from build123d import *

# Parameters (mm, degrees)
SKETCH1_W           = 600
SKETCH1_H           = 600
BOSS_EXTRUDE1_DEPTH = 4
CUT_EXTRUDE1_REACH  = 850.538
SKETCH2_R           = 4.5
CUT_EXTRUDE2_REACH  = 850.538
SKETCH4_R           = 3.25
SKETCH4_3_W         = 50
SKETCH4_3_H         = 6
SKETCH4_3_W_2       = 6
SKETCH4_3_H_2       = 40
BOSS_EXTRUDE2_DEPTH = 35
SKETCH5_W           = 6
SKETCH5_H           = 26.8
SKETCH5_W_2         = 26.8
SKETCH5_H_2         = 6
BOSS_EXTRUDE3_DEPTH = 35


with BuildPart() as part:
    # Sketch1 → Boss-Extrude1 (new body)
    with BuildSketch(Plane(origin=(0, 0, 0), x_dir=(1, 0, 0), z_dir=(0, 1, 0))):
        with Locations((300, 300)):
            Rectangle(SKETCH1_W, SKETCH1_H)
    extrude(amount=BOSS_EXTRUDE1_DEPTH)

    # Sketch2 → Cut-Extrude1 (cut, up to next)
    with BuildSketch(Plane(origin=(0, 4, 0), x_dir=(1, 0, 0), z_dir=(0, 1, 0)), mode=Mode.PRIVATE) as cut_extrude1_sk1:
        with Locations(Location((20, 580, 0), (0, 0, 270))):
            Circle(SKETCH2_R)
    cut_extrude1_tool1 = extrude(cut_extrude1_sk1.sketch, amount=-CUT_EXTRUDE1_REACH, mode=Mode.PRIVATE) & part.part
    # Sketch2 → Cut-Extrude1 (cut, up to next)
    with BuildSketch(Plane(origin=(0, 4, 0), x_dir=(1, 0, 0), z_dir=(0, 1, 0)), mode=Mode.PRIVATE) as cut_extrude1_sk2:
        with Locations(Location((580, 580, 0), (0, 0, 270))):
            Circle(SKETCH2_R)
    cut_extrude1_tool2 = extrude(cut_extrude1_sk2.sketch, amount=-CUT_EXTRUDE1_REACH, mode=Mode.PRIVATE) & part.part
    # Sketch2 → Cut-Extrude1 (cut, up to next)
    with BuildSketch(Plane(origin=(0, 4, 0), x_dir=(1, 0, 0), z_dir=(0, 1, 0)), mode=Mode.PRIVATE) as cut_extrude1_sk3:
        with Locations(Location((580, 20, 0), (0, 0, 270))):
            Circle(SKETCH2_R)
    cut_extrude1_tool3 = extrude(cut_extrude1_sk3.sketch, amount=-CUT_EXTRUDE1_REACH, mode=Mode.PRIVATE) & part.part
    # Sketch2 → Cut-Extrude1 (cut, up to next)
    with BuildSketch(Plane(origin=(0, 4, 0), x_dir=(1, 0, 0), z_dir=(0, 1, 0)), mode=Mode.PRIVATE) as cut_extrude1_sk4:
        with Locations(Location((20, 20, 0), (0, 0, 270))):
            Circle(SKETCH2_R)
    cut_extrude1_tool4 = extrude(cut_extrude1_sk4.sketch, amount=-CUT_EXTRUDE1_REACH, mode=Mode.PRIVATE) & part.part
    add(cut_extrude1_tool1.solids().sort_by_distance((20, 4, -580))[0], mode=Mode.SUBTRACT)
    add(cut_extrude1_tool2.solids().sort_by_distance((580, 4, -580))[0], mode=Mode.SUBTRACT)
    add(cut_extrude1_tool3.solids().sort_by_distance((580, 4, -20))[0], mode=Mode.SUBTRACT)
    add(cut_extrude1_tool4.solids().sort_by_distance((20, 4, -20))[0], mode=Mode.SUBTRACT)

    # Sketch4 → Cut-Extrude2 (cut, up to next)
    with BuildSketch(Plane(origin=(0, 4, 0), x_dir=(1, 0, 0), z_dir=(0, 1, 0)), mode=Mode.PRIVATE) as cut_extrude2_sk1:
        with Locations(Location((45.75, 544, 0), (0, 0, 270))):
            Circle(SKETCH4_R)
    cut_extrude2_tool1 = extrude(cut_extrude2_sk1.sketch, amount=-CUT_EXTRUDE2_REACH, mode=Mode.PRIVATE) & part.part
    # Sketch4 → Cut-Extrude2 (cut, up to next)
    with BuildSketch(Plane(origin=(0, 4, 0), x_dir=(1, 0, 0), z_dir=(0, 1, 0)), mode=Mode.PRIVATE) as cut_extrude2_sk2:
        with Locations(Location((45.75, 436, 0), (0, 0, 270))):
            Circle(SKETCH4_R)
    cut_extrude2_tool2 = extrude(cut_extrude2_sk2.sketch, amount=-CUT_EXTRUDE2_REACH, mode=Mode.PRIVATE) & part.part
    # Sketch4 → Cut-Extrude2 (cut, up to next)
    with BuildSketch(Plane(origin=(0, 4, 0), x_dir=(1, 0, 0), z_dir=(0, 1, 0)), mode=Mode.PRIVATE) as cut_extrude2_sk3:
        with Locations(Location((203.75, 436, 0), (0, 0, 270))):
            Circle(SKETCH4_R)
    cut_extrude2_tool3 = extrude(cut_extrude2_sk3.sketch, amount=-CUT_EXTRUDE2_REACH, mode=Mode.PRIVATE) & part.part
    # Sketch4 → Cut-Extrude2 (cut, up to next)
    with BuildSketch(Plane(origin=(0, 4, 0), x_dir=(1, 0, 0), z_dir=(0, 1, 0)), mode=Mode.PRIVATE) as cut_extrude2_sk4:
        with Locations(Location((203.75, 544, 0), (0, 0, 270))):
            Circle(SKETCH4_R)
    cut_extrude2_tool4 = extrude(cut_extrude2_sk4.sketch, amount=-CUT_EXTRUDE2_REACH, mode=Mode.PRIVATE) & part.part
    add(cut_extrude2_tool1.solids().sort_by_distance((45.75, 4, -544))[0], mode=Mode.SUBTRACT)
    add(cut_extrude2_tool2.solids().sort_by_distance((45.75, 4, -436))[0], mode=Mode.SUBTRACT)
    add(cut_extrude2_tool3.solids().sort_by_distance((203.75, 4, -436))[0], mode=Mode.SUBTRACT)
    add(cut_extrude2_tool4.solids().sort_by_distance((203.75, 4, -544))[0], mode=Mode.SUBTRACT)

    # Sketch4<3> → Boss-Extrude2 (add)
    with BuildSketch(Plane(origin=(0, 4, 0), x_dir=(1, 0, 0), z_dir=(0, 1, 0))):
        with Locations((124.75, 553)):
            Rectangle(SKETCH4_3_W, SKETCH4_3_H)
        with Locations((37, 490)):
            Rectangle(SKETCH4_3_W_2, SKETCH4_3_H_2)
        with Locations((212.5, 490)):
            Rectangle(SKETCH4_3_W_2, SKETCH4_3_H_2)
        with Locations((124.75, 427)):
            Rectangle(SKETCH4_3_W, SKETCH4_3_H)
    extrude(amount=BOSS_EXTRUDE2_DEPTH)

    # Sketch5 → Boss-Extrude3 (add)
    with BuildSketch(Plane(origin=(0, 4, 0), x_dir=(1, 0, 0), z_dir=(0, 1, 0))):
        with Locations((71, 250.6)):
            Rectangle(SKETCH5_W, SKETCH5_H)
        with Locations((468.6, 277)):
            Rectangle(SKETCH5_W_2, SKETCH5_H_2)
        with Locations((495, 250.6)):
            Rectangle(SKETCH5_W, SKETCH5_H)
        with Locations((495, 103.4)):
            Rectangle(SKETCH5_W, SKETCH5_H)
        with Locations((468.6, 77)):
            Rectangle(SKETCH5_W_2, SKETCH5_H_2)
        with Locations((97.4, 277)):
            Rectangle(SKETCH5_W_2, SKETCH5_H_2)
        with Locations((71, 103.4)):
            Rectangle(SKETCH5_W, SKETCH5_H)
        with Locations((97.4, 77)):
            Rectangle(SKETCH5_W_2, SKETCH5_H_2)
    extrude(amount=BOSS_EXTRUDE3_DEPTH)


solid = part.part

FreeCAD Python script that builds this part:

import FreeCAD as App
import Part
import Sketcher
Q = App.Units.Quantity


def add_polygon(sketch, points):
    """Adds a closed chain of lines whose ends are joined by coincident constraints."""
    first, n = sketch.GeometryCount, len(points)
    for a, b in zip(points, points[1:] + points[:1]):
        sketch.addGeometry(Part.LineSegment(App.Vector(*a, 0), App.Vector(*b, 0)), False)
    for i in range(n):
        sketch.addConstraint(Sketcher.Constraint("Coincident", first + i, 2, first + (i + 1) % n, 1))

doc = App.newDocument("Part")
body = doc.addObject("PartDesign::Body", "Body")

# Sketch on XZ plane
sketch1 = doc.addObject("Sketcher::SketchObject", "Sketch")
body.addObject(sketch1)
sketch1.AttachmentSupport = (doc.XZ_Plane, [""])
sketch1.MapMode = "FlatFace"
add_polygon(sketch1, [(0, -600), (0, 0), (600, 0), (600, -600)])  # lines 0-3
sketch1.addConstraint([
    Sketcher.Constraint("Vertical", 0),
    Sketcher.Constraint("Horizontal", 1),
    Sketcher.Constraint("Vertical", 2),
    Sketcher.Constraint("Horizontal", 3),
    Sketcher.Constraint("Coincident", 0, 2, -1, 1),
    Sketcher.Constraint("Equal", 3, 0),
    Sketcher.Constraint("DistanceX", 1, 1, 1, 2, Q("600 mm")),
])
pad1 = doc.addObject("PartDesign::Pad", "Pad")
body.addObject(pad1)
pad1.Profile = sketch1
pad1.Length = 4
pad1.Reversed = True

# Sketch on XZ plane
sketch2 = doc.addObject("Sketcher::SketchObject", "Sketch001")
body.addObject(sketch2)
sketch2.AttachmentSupport = (doc.XZ_Plane, [""])
sketch2.MapMode = "FlatFace"
sketch2.AttachmentOffset = App.Placement(App.Vector(0, 0, -4), App.Rotation())
sketch2.addGeometry(Part.Circle(App.Vector(20, -580, 0), App.Vector(0, 0, 1), 4.5), False)
sketch2.addConstraint([
    Sketcher.Constraint("Diameter", 0, Q("9 mm")),
    Sketcher.Constraint("DistanceX", -1, 1, 0, 3, Q("20 mm")),
    Sketcher.Constraint("DistanceY", 0, 3, -1, 1, Q("580 mm")),
])
pocket1 = doc.addObject("PartDesign::Pocket", "Pocket")
body.addObject(pocket1)
pocket1.Profile = sketch2
pocket1.Type = "UpToFirst"
pocket1.Reversed = True

# Sketch on XZ plane
sketch3 = doc.addObject("Sketcher::SketchObject", "Sketch002")
body.addObject(sketch3)
sketch3.AttachmentSupport = (doc.XZ_Plane, [""])
sketch3.MapMode = "FlatFace"
sketch3.AttachmentOffset = App.Placement(App.Vector(0, 0, -4), App.Rotation())
sketch3.addGeometry(Part.Circle(App.Vector(580, -580, 0), App.Vector(0, 0, 1), 4.5), False)
sketch3.addConstraint([
    Sketcher.Constraint("Diameter", 0, Q("9 mm")),
    Sketcher.Constraint("DistanceX", -1, 1, 0, 3, Q("580 mm")),
    Sketcher.Constraint("DistanceY", 0, 3, -1, 1, Q("580 mm")),
])
pocket2 = doc.addObject("PartDesign::Pocket", "Pocket001")
body.addObject(pocket2)
pocket2.Profile = sketch3
pocket2.Type = "UpToFirst"
pocket2.Reversed = True

# Sketch on XZ plane
sketch4 = doc.addObject("Sketcher::SketchObject", "Sketch003")
body.addObject(sketch4)
sketch4.AttachmentSupport = (doc.XZ_Plane, [""])
sketch4.MapMode = "FlatFace"
sketch4.AttachmentOffset = App.Placement(App.Vector(0, 0, -4), App.Rotation())
sketch4.addGeometry(Part.Circle(App.Vector(580, -20, 0), App.Vector(0, 0, 1), 4.5), False)
sketch4.addConstraint([
    Sketcher.Constraint("Diameter", 0, Q("9 mm")),
    Sketcher.Constraint("DistanceX", -1, 1, 0, 3, Q("580 mm")),
    Sketcher.Constraint("DistanceY", 0, 3, -1, 1, Q("20 mm")),
])
pocket3 = doc.addObject("PartDesign::Pocket", "Pocket002")
body.addObject(pocket3)
pocket3.Profile = sketch4
pocket3.Type = "UpToFirst"
pocket3.Reversed = True

# Sketch on XZ plane
sketch5 = doc.addObject("Sketcher::SketchObject", "Sketch004")
body.addObject(sketch5)
sketch5.AttachmentSupport = (doc.XZ_Plane, [""])
sketch5.MapMode = "FlatFace"
sketch5.AttachmentOffset = App.Placement(App.Vector(0, 0, -4), App.Rotation())
sketch5.addGeometry(Part.Circle(App.Vector(20, -20, 0), App.Vector(0, 0, 1), 4.5), False)
sketch5.addConstraint([
    Sketcher.Constraint("Diameter", 0, Q("9 mm")),
    Sketcher.Constraint("DistanceX", -1, 1, 0, 3, Q("20 mm")),
    Sketcher.Constraint("DistanceY", 0, 3, -1, 1, Q("20 mm")),
])
pocket4 = doc.addObject("PartDesign::Pocket", "Pocket003")
body.addObject(pocket4)
pocket4.Profile = sketch5
pocket4.Type = "UpToFirst"
pocket4.Reversed = True

# Sketch on XZ plane
sketch6 = doc.addObject("Sketcher::SketchObject", "Sketch005")
body.addObject(sketch6)
sketch6.AttachmentSupport = (doc.XZ_Plane, [""])
sketch6.MapMode = "FlatFace"
sketch6.AttachmentOffset = App.Placement(App.Vector(0, 0, -4), App.Rotation())
sketch6.addGeometry(Part.Circle(App.Vector(45.8, -544, 0), App.Vector(0, 0, 1), 3.2), False)
sketch6.addConstraint([
    Sketcher.Constraint("Diameter", 0, Q("6.5 mm")),
    Sketcher.Constraint("DistanceY", 0, 3, -1, 1, Q("544 mm")),
    Sketcher.Constraint("DistanceX", -1, 1, 0, 3, Q("45.75 mm")),
])
pocket5 = doc.addObject("PartDesign::Pocket", "Pocket004")
body.addObject(pocket5)
pocket5.Profile = sketch6
pocket5.Type = "UpToFirst"
pocket5.Reversed = True

# Sketch on XZ plane
sketch7 = doc.addObject("Sketcher::SketchObject", "Sketch006")
body.addObject(sketch7)
sketch7.AttachmentSupport = (doc.XZ_Plane, [""])
sketch7.MapMode = "FlatFace"
sketch7.AttachmentOffset = App.Placement(App.Vector(0, 0, -4), App.Rotation())
sketch7.addGeometry(Part.Circle(App.Vector(45.8, -436, 0), App.Vector(0, 0, 1), 3.2), False)
sketch7.addConstraint([
    Sketcher.Constraint("Diameter", 0, Q("6.5 mm")),
    Sketcher.Constraint("DistanceY", 0, 3, -1, 1, Q("436 mm")),
    Sketcher.Constraint("DistanceX", -1, 1, 0, 3, Q("45.75 mm")),
])
pocket6 = doc.addObject("PartDesign::Pocket", "Pocket005")
body.addObject(pocket6)
pocket6.Profile = sketch7
pocket6.Type = "UpToFirst"
pocket6.Reversed = True

# Sketch on XZ plane
sketch8 = doc.addObject("Sketcher::SketchObject", "Sketch007")
body.addObject(sketch8)
sketch8.AttachmentSupport = (doc.XZ_Plane, [""])
sketch8.MapMode = "FlatFace"
sketch8.AttachmentOffset = App.Placement(App.Vector(0, 0, -4), App.Rotation())
sketch8.addGeometry(Part.Circle(App.Vector(203.8, -436, 0), App.Vector(0, 0, 1), 3.2), False)
sketch8.addConstraint([
    Sketcher.Constraint("Diameter", 0, Q("6.5 mm")),
    Sketcher.Constraint("DistanceY", 0, 3, -1, 1, Q("436 mm")),
    Sketcher.Constraint("DistanceX", -1, 1, 0, 3, Q("203.75 mm")),
])
pocket7 = doc.addObject("PartDesign::Pocket", "Pocket006")
body.addObject(pocket7)
pocket7.Profile = sketch8
pocket7.Type = "UpToFirst"
pocket7.Reversed = True

# Sketch on XZ plane
sketch9 = doc.addObject("Sketcher::SketchObject", "Sketch008")
body.addObject(sketch9)
sketch9.AttachmentSupport = (doc.XZ_Plane, [""])
sketch9.MapMode = "FlatFace"
sketch9.AttachmentOffset = App.Placement(App.Vector(0, 0, -4), App.Rotation())
sketch9.addGeometry(Part.Circle(App.Vector(203.8, -544, 0), App.Vector(0, 0, 1), 3.2), False)
sketch9.addConstraint([
    Sketcher.Constraint("Diameter", 0, Q("6.5 mm")),
    Sketcher.Constraint("DistanceY", 0, 3, -1, 1, Q("544 mm")),
    Sketcher.Constraint("DistanceX", -1, 1, 0, 3, Q("203.75 mm")),
])
pocket8 = doc.addObject("PartDesign::Pocket", "Pocket007")
body.addObject(pocket8)
pocket8.Profile = sketch9
pocket8.Type = "UpToFirst"
pocket8.Reversed = True

# Sketch on XZ plane
sketch10 = doc.addObject("Sketcher::SketchObject", "Sketch009")
body.addObject(sketch10)
sketch10.AttachmentSupport = (doc.XZ_Plane, [""])
sketch10.MapMode = "FlatFace"
sketch10.AttachmentOffset = App.Placement(App.Vector(0, 0, -4), App.Rotation())
add_polygon(sketch10, [(100, -556), (100, -550), (150, -550), (150, -556)])  # lines 0-3
add_polygon(sketch10, [(34, -510), (34, -470), (40, -470), (40, -510)])  # lines 4-7
add_polygon(sketch10, [(210, -510), (210, -470), (216, -470), (216, -510)])  # lines 8-11
add_polygon(sketch10, [(100, -430), (100, -424), (150, -424), (150, -430)])  # lines 12-15
sketch10.addConstraint([
    Sketcher.Constraint("Vertical", 0),
    Sketcher.Constraint("Horizontal", 1),
    Sketcher.Constraint("Vertical", 2),
    Sketcher.Constraint("Horizontal", 3),
    Sketcher.Constraint("Vertical", 4),
    Sketcher.Constraint("Horizontal", 5),
    Sketcher.Constraint("Vertical", 6),
    Sketcher.Constraint("Horizontal", 7),
    Sketcher.Constraint("Vertical", 8),
    Sketcher.Constraint("Horizontal", 9),
    Sketcher.Constraint("Vertical", 10),
    Sketcher.Constraint("Horizontal", 11),
    Sketcher.Constraint("Vertical", 12),
    Sketcher.Constraint("Horizontal", 13),
    Sketcher.Constraint("Vertical", 14),
    Sketcher.Constraint("Horizontal", 15),
    Sketcher.Constraint("Horizontal", 5, 2, 8, 2),
    Sketcher.Constraint("Horizontal", 7, 2, 10, 2),
    Sketcher.Constraint("Vertical", 3, 2, 12, 2),
    Sketcher.Constraint("Vertical", 2, 2, 13, 2),
    Sketcher.Constraint("Equal", 7, 9),
    Sketcher.Constraint("Equal", 11, 0),
    Sketcher.Constraint("Equal", 2, 12),
    Sketcher.Constraint("DistanceX", 1, 1, 1, 2, Q("50 mm")),
    Sketcher.Constraint("DistanceX", 5, 1, 5, 2, Q("6 mm")),
    Sketcher.Constraint("DistanceY", 4, 1, 4, 2, Q("40 mm")),
    Sketcher.Constraint("DistanceY", 0, 2, -1, 1, Q("550 mm")),
    Sketcher.Constraint("DistanceX", -1, 1, 4, 2, Q("34 mm")),
    Sketcher.Constraint("DistanceY", 4, 2, -1, 1, Q("470 mm")),
    Sketcher.Constraint("DistanceY", 12, 2, -1, 1, Q("424 mm")),
    Sketcher.Constraint("DistanceX", -1, 1, 8, 2, Q("209.5 mm")),
    Sketcher.Constraint("DistanceX", -1, 1, 0, 2, Q("99.75 mm")),
])
pad2 = doc.addObject("PartDesign::Pad", "Pad001")
body.addObject(pad2)
pad2.Profile = sketch10
pad2.Length = 35
pad2.Reversed = True

# Sketch on XZ plane
sketch11 = doc.addObject("Sketcher::SketchObject", "Sketch010")
body.addObject(sketch11)
sketch11.AttachmentSupport = (doc.XZ_Plane, [""])
sketch11.MapMode = "FlatFace"
sketch11.AttachmentOffset = App.Placement(App.Vector(0, 0, -4), App.Rotation())
add_polygon(sketch11, [(68, -264), (68, -237), (74, -237), (74, -264)])  # lines 0-3
add_polygon(sketch11, [(455, -280), (455, -274), (482, -274), (482, -280)])  # lines 4-7
add_polygon(sketch11, [(492, -264), (492, -237), (498, -237), (498, -264)])  # lines 8-11
add_polygon(sketch11, [(492, -117), (492, -90), (498, -90), (498, -117)])  # lines 12-15
add_polygon(sketch11, [(455, -80), (455, -74), (482, -74), (482, -80)])  # lines 16-19
add_polygon(sketch11, [(84, -280), (84, -274), (111, -274), (111, -280)])  # lines 20-23
add_polygon(sketch11, [(68, -117), (68, -90), (74, -90), (74, -117)])  # lines 24-27
add_polygon(sketch11, [(84, -80), (84, -74), (111, -74), (111, -80)])  # lines 28-31
sketch11.addConstraint([
    Sketcher.Constraint("Vertical", 0),
    Sketcher.Constraint("Horizontal", 1),
    Sketcher.Constraint("Vertical", 2),
    Sketcher.Constraint("Horizontal", 3),
    Sketcher.Constraint("Vertical", 4),
    Sketcher.Constraint("Horizontal", 5),
    Sketcher.Constraint("Vertical", 6),
    Sketcher.Constraint("Horizontal", 7),
    Sketcher.Constraint("Vertical", 8),
    Sketcher.Constraint("Horizontal", 9),
    Sketcher.Constraint("Vertical", 10),
    Sketcher.Constraint("Horizontal", 11),
    Sketcher.Constraint("Vertical", 12),
    Sketcher.Constraint("Horizontal", 13),
    Sketcher.Constraint("Vertical", 14),
    Sketcher.Constraint("Horizontal", 15),
    Sketcher.Constraint("Vertical", 16),
    Sketcher.Constraint("Horizontal", 17),
    Sketcher.Constraint("Vertical", 18),
    Sketcher.Constraint("Horizontal", 19),
    Sketcher.Constraint("Vertical", 20),
    Sketcher.Constraint("Horizontal", 21),
    Sketcher.Constraint("Vertical", 22),
    Sketcher.Constraint("Horizontal", 23),
    Sketcher.Constraint("Vertical", 24),
    Sketcher.Constraint("Horizontal", 25),
    Sketcher.Constraint("Vertical", 26),
    Sketcher.Constraint("Horizontal", 27),
    Sketcher.Constraint("Vertical", 28),
    Sketcher.Constraint("Horizontal", 29),
    Sketcher.Constraint("Vertical", 30),
    Sketcher.Constraint("Horizontal", 31),
    Sketcher.Constraint("Horizontal", 1, 2, 8, 2),
    Sketcher.Constraint("Horizontal", 3, 2, 10, 2),
    Sketcher.Constraint("Horizontal", 5, 2, 20, 2),
    Sketcher.Constraint("Horizontal", 7, 2, 22, 2),
    Sketcher.Constraint("Horizontal", 13, 2, 24, 2),
    Sketcher.Constraint("Horizontal", 15, 2, 26, 2),
    Sketcher.Constraint("Horizontal", 17, 2, 28, 2),
    Sketcher.Constraint("Horizontal", 19, 2, 30, 2),
    Sketcher.Constraint("Vertical", 11, 2, 12, 2),
    Sketcher.Constraint("Vertical", 10, 2, 13, 2),
    Sketcher.Constraint("Vertical", 7, 2, 16, 2),
    Sketcher.Constraint("Vertical", 6, 2, 17, 2),
    Sketcher.Constraint("Vertical", 3, 2, 24, 2),
    Sketcher.Constraint("Vertical", 2, 2, 25, 2),
    Sketcher.Constraint("Vertical", 23, 2, 28, 2),
    Sketcher.Constraint("Vertical", 22, 2, 29, 2),
    Sketcher.Constraint("Equal", 3, 9),
    Sketcher.Constraint("Equal", 19, 21),
    Sketcher.Constraint("Equal", 31, 0),
    Sketcher.Constraint("Equal", 27, 4),
    Sketcher.Constraint("Equal", 10, 12),
    Sketcher.Constraint("Equal", 6, 16),
    Sketcher.Constraint("DistanceX", 1, 1, 1, 2, Q("6 mm")),
    Sketcher.Constraint("DistanceX", 5, 1, 5, 2, Q("26.8 mm")),
    Sketcher.Constraint("DistanceX", -1, 1, 0, 2, Q("68 mm")),
    Sketcher.Constraint("DistanceY", 2, 2, -1, 1, Q("264 mm")),
    Sketcher.Constraint("DistanceY", 4, 2, -1, 1, Q("274 mm")),
    Sketcher.Constraint("DistanceX", -1, 1, 5, 2, Q("482 mm")),
    Sketcher.Constraint("DistanceX", -1, 1, 8, 2, Q("492 mm")),
    Sketcher.Constraint("DistanceY", 12, 2, -1, 1, Q("90 mm")),
    Sketcher.Constraint("DistanceY", 16, 2, -1, 1, Q("74 mm")),
    Sketcher.Constraint("DistanceX", -1, 1, 20, 2, Q("84 mm")),
])
pad3 = doc.addObject("PartDesign::Pad", "Pad002")
body.addObject(pad3)
pad3.Profile = sketch11
pad3.Length = 35
pad3.Reversed = True

doc.recompute()
